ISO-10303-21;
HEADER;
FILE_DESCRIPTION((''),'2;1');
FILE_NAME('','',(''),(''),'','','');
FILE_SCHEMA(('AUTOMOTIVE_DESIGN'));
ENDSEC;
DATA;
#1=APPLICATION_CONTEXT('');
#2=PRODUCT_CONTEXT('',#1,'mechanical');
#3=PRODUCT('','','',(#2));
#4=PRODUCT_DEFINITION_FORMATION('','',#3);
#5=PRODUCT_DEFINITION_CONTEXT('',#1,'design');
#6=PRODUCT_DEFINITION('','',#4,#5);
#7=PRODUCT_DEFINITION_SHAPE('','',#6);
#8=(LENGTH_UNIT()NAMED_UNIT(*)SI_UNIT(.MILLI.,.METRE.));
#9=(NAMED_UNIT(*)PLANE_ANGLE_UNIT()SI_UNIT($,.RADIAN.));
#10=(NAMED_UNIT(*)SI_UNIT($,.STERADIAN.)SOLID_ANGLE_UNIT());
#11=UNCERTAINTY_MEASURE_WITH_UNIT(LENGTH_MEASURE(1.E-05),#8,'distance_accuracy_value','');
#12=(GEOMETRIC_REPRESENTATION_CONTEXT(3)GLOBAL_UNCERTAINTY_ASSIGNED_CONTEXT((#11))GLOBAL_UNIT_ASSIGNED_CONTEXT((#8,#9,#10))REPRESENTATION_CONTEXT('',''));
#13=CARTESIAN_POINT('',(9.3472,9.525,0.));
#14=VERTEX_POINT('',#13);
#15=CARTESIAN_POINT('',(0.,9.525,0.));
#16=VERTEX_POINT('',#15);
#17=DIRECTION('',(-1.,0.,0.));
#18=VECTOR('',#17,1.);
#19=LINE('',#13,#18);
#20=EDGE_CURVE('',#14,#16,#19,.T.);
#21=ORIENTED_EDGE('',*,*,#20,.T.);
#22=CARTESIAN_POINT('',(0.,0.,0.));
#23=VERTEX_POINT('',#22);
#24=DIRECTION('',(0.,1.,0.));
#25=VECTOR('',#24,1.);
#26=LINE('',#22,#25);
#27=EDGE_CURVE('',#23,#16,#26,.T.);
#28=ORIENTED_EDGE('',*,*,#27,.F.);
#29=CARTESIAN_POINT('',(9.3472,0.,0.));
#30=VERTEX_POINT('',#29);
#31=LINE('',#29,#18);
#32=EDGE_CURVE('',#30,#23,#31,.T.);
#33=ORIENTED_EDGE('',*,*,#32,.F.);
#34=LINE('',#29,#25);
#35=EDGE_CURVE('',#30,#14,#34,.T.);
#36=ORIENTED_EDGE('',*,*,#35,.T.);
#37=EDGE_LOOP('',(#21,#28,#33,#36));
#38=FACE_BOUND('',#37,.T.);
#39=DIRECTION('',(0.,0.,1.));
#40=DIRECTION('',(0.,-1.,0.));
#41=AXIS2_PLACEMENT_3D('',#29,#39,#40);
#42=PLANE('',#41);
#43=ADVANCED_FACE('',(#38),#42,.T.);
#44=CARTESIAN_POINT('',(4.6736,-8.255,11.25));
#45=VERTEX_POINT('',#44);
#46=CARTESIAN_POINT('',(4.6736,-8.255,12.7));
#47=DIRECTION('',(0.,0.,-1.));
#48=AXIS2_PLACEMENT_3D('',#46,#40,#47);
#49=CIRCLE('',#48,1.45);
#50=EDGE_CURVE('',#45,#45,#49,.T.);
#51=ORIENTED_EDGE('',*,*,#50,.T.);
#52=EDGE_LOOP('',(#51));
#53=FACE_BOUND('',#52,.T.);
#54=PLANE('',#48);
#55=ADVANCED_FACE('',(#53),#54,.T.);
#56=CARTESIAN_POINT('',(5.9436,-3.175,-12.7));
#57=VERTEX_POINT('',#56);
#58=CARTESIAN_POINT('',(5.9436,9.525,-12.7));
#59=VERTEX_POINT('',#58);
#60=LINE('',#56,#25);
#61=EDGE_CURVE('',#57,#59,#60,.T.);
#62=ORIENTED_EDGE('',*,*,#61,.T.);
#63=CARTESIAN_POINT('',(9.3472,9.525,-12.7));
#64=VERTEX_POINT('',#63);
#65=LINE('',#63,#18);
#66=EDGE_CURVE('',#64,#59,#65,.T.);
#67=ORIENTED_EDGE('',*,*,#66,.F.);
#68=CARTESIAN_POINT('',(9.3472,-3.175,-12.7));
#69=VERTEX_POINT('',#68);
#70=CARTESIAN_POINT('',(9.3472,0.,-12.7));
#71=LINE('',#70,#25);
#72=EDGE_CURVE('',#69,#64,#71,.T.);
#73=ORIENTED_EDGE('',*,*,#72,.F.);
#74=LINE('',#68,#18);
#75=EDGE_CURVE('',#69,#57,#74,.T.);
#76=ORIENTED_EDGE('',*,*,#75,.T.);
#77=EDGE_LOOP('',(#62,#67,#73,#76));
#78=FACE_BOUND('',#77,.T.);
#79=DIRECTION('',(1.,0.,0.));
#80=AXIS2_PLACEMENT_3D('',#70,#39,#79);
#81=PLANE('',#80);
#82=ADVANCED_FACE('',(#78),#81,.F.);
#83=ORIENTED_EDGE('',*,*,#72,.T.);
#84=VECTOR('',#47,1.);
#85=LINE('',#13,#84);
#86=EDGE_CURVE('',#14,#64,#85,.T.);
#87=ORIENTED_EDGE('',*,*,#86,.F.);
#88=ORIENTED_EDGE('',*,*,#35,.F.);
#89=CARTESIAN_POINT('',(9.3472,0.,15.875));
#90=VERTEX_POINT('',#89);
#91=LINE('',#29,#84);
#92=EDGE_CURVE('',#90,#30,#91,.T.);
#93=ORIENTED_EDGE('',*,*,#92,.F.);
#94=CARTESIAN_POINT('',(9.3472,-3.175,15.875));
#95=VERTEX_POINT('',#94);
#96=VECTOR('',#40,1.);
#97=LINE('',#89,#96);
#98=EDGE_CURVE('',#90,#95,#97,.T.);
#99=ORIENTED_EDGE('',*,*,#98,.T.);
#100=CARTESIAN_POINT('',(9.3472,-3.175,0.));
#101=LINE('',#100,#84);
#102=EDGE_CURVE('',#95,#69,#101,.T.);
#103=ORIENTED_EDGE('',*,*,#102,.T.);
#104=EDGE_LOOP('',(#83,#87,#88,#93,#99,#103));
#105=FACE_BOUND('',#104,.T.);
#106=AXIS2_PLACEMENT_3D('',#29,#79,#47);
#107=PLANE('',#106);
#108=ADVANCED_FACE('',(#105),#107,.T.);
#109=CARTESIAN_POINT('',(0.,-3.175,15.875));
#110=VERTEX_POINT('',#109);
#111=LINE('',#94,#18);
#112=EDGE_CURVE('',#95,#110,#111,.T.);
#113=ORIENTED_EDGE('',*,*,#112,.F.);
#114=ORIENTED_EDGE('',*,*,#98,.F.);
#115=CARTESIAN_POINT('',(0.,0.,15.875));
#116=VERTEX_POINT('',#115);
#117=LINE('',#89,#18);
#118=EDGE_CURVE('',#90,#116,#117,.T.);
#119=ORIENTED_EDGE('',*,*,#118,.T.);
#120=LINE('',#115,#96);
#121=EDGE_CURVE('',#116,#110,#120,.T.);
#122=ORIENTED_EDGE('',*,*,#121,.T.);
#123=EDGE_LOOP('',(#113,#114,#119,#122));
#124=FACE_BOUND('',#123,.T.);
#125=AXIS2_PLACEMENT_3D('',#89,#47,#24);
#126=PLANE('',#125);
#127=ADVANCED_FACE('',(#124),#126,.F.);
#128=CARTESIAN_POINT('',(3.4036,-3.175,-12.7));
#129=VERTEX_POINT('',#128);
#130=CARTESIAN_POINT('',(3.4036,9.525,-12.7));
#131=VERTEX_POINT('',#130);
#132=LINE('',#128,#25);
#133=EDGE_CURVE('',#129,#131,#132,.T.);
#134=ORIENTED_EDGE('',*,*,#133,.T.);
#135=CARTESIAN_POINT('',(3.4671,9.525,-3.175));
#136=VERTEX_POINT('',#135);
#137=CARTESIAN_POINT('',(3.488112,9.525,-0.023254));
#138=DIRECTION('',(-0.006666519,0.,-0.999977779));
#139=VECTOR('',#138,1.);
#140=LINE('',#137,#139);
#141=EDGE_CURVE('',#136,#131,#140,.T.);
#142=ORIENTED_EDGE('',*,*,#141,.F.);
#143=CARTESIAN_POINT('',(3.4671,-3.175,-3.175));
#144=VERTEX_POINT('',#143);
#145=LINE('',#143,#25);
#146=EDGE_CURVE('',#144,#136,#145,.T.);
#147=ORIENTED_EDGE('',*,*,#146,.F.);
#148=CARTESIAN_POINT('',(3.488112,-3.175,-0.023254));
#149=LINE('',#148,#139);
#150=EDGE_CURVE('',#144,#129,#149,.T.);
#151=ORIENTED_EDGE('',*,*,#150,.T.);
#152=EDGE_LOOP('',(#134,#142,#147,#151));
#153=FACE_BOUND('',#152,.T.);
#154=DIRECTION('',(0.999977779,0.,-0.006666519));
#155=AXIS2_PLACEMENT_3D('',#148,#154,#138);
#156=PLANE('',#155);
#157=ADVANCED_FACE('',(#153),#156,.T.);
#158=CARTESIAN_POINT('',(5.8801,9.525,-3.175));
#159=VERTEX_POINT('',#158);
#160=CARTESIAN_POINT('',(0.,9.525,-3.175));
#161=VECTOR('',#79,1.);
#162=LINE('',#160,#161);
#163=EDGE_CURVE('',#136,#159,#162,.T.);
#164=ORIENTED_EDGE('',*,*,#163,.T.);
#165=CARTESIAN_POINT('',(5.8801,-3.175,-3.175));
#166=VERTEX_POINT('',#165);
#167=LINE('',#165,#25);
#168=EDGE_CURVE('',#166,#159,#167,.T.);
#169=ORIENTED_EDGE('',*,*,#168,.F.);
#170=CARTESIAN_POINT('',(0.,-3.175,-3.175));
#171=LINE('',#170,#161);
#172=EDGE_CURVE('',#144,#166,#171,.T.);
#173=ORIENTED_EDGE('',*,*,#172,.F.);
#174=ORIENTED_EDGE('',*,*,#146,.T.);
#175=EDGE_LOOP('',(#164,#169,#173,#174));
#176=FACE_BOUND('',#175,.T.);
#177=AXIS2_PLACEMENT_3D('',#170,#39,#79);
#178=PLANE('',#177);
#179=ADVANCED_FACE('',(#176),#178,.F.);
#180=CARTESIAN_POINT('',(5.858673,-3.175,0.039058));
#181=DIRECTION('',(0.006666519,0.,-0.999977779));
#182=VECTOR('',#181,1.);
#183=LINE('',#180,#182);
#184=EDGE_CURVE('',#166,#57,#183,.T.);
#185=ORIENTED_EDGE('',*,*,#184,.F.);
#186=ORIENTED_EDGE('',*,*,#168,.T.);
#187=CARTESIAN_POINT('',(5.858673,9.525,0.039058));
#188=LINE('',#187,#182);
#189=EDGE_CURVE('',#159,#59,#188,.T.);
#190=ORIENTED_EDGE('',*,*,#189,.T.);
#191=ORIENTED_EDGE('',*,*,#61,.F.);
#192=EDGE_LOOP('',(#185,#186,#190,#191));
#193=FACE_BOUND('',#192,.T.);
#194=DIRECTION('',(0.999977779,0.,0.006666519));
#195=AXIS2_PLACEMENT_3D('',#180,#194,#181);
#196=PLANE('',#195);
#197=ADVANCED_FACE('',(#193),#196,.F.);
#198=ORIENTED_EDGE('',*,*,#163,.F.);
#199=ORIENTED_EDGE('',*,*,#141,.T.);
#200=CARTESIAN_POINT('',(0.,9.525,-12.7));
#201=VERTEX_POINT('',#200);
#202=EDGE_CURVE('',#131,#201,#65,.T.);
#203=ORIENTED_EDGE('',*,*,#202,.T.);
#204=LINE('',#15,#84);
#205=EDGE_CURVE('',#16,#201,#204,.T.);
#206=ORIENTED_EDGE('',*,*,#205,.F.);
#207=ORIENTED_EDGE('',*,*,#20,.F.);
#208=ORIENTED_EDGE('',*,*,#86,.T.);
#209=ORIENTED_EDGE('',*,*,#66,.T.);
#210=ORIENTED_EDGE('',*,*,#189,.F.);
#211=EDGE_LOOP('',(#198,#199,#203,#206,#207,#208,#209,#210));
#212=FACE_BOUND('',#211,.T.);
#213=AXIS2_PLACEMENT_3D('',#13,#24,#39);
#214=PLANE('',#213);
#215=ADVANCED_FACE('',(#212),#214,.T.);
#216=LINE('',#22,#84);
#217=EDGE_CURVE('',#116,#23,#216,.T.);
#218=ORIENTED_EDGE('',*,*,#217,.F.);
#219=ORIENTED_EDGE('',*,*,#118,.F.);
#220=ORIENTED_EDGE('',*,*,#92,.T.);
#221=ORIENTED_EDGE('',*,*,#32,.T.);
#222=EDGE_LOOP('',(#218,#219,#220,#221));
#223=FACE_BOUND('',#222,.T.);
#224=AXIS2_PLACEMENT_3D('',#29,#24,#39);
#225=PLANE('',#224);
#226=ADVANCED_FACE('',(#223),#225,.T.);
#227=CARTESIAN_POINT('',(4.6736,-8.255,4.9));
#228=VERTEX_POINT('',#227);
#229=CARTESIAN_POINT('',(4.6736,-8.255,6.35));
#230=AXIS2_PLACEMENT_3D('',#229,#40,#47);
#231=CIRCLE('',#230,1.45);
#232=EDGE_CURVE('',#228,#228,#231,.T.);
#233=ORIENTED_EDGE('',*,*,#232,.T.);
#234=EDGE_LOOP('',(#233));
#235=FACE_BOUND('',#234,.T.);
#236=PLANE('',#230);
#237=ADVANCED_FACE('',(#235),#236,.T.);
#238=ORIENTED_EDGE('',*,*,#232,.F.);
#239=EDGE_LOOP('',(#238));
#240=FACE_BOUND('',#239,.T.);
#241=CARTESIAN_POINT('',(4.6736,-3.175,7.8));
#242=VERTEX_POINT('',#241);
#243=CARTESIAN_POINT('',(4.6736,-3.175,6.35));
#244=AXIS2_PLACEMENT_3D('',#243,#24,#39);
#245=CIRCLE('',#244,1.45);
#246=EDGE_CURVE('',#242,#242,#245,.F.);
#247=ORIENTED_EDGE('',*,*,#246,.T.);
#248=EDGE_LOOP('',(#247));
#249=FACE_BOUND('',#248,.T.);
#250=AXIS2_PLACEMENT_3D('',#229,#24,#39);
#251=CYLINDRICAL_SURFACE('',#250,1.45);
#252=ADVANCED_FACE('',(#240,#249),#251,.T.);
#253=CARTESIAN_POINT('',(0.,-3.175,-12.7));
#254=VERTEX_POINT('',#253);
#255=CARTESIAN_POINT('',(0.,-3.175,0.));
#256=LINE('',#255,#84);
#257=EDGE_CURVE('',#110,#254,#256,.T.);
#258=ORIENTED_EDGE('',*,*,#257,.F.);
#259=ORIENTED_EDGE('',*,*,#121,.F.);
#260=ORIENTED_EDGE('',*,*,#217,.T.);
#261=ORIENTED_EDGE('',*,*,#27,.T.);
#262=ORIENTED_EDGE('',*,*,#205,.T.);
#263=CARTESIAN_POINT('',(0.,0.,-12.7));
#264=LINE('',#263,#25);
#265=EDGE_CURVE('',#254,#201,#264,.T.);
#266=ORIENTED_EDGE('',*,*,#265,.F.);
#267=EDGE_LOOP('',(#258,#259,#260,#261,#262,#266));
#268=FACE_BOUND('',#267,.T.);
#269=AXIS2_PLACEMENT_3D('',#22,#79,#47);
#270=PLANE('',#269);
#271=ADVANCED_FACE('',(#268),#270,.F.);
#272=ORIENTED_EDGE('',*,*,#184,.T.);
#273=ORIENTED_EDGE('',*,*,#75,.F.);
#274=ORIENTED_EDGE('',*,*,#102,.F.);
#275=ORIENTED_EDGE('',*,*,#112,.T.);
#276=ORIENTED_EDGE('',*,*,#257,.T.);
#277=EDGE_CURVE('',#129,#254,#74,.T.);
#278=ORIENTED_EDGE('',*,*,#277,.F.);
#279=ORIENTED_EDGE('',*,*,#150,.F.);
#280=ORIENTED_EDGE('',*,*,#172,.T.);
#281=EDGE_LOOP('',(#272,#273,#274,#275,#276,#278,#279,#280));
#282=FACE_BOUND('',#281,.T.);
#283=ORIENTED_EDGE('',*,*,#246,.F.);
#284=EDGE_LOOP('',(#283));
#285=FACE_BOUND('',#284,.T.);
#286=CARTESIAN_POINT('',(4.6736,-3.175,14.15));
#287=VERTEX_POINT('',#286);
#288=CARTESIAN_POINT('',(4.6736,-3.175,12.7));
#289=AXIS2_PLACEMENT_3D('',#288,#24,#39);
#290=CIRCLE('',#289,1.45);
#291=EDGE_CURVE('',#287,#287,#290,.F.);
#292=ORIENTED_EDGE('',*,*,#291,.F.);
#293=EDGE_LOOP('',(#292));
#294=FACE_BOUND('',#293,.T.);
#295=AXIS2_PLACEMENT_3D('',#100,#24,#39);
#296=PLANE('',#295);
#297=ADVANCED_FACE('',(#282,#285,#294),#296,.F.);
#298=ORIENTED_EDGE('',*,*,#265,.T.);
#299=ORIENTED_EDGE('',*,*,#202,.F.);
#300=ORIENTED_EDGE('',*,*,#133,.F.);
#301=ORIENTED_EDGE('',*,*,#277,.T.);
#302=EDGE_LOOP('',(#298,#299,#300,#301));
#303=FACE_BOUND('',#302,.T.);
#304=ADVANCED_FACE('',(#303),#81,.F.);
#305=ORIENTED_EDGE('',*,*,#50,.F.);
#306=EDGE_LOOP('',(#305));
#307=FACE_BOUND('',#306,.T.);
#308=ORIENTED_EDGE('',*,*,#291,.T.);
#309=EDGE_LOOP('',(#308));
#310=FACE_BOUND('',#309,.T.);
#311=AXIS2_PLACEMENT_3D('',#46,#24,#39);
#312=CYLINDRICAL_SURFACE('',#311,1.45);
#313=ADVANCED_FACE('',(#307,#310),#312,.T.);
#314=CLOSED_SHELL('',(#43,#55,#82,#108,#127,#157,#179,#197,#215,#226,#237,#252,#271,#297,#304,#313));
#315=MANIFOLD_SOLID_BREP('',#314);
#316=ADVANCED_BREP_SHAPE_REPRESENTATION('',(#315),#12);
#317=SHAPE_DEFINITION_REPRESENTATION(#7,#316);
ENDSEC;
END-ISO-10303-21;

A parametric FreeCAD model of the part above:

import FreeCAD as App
import Part
import Sketcher
Q = App.Units.Quantity


def add_polygon(sketch, points):
    """Adds a closed chain of lines whose ends are joined by coincident constraints."""
    first, n = sketch.GeometryCount, len(points)
    for a, b in zip(points, points[1:] + points[:1]):
        sketch.addGeometry(Part.LineSegment(App.Vector(*a, 0), App.Vector(*b, 0)), False)
    for i in range(n):
        sketch.addConstraint(Sketcher.Constraint("Coincident", first + i, 2, first + (i + 1) % n, 1))

doc = App.newDocument("Part")
body = doc.addObject("PartDesign::Body", "Body")

# Sketch on YZ plane
sketch1 = body.newObject("Sketcher::SketchObject", "Sketch")
sketch1.AttachmentSupport = (doc.getObject("YZ_Plane"), [""])
sketch1.MapMode = "FlatFace"
add_polygon(sketch1, [(0, 15.875), (-3.175, 15.875), (-3.175, -12.7), (9.525, -12.7), (9.525, 0), (0, 0)])  # lines 0-5
sketch1.addConstraint([
    Sketcher.Constraint("Horizontal", 0),
    Sketcher.Constraint("Vertical", 1),
    Sketcher.Constraint("Horizontal", 2),
    Sketcher.Constraint("Vertical", 3),
    Sketcher.Constraint("Horizontal", 4),
    Sketcher.Constraint("Vertical", 5),
    Sketcher.Constraint("Coincident", 4, 2, -1, 1),
    Sketcher.Constraint("Equal", 2, 3),
    Sketcher.Constraint("DistanceX", 2, 1, 2, 2, Q("0.5 in")),
    Sketcher.Constraint("DistanceX", 0, 2, 0, 1, Q("0.125 in")),
    Sketcher.Constraint("DistanceY", 1, 2, 1, 1, Q("1.125 in")),
])
pad1 = body.newObject("PartDesign::Pad", "Pad")
pad1.Profile = sketch1
pad1.Length = Q("0.368 in")

# Sketch on XZ plane
sketch2 = body.newObject("Sketcher::SketchObject", "Sketch001")
sketch2.AttachmentSupport = (doc.getObject("XZ_Plane"), [""])
sketch2.MapMode = "FlatFace"
sketch2.AttachmentOffset = App.Placement(App.Vector(0, 0, -0.375 * 25.4), App.Rotation())
add_polygon(sketch2, [(3.4671, -3.175), (5.8801, -3.175), (5.9436, -12.7), (3.4036, -12.7)])  # lines 0-3
sketch2.addConstraint([
    Sketcher.Constraint("Horizontal", 0),
    Sketcher.Constraint("Horizontal", 2),
    Sketcher.Constraint("Equal", 1, 3),
    Sketcher.Constraint("DistanceX", 2, 2, 2, 1, Q("0.1 in")),
    Sketcher.Constraint("DistanceY", 1, 2, -1, 1, Q("0.5 in")),
    Sketcher.Constraint("DistanceX", 0, 1, 0, 2, Q("0.095 in")),
    Sketcher.Constraint("DistanceY", 0, 2, -1, 1, Q("0.125 in")),
    Sketcher.Constraint("DistanceX", -1, 1, 1, 2, Q("0.234 in")),
])
pocket1 = body.newObject("PartDesign::Pocket", "Pocket")
pocket1.Profile = sketch2
pocket1.Type = "ThroughAll"
pocket1.Reversed = True

# Sketch on XZ plane
sketch3 = body.newObject("Sketcher::SketchObject", "Sketch002")
sketch3.AttachmentSupport = (doc.getObject("XZ_Plane"), [""])
sketch3.MapMode = "FlatFace"
sketch3.AttachmentOffset = App.Placement(App.Vector(0, 0, 0.125 * 25.4), App.Rotation())
sketch3.addGeometry([
    Part.Circle(App.Vector(4.6736, 12.7, 0), App.Vector(0, 0, 1), 1.45),
    Part.Circle(App.Vector(4.6736, 6.35, 0), App.Vector(0, 0, 1), 1.45),
], False)
sketch3.addConstraint([
    Sketcher.Constraint("Equal", 0, 1),
    Sketcher.Constraint("Vertical", 0, 3, 1, 3),
    Sketcher.Constraint("DistanceY", -1, 1, 0, 3, Q("0.5 in")),
    Sketcher.Constraint("Diameter", 0, Q("2.9 mm")),
    Sketcher.Constraint("DistanceY", -1, 1, 1, 3, Q("0.25 in")),
    Sketcher.Constraint("DistanceX", -1, 1, 0, 3, Q("0.184 in")),
])
pad2 = body.newObject("PartDesign::Pad", "Pad001")
pad2.Profile = sketch3
pad2.Length = Q("0.2 in")

doc.recompute()
